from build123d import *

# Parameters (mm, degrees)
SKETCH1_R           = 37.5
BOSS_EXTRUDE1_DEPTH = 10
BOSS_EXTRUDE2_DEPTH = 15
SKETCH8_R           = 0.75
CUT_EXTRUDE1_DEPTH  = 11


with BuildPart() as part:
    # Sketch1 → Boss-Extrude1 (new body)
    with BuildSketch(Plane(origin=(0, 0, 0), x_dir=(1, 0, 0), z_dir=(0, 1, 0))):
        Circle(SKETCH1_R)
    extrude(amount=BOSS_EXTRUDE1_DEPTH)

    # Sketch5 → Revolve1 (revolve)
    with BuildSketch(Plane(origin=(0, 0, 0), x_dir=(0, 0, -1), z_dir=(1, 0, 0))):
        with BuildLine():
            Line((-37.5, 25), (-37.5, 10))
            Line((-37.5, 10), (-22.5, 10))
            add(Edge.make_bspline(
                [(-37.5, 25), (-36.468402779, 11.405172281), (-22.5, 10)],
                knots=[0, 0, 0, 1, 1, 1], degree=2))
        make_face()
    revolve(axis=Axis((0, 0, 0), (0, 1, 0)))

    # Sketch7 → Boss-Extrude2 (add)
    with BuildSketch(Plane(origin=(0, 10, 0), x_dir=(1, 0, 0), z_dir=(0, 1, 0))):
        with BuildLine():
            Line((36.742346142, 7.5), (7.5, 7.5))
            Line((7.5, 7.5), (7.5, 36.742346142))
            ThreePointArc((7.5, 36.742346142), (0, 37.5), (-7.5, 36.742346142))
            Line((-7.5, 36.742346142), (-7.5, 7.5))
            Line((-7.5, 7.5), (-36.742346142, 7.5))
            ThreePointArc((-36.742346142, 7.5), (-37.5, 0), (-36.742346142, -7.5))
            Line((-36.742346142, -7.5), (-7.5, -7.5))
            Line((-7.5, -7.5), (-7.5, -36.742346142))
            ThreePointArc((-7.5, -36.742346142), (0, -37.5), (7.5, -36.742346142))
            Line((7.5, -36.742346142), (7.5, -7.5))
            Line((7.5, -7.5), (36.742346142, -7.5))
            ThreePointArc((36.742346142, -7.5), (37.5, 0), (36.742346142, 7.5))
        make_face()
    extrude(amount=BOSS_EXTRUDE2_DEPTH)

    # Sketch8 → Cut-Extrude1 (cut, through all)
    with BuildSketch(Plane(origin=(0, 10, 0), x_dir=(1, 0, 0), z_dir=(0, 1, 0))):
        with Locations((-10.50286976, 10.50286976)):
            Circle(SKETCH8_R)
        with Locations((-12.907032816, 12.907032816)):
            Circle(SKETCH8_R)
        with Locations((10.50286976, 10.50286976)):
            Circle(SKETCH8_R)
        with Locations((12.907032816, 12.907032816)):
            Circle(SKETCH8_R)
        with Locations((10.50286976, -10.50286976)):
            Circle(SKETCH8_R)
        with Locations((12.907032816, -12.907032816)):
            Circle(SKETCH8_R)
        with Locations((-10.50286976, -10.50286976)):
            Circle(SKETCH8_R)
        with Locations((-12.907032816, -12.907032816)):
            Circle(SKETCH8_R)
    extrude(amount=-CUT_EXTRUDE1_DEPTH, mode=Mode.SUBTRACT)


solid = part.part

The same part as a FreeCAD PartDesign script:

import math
import FreeCAD as App
import Part
import Sketcher

V = App.Vector

doc = App.newDocument("Part")
params = doc.addObject("Spreadsheet::Sheet", "Params")
for row, (alias, value) in enumerate([
    ("sketch1_diameter", "75 mm"),
    ("pad1_length", "10 mm"),
    ("revolution_angle", "360 deg"),
    ("sketch3_radius", "37.5 mm"),
    ("pad2_length", "15 mm"),
    ("sketch4_diameter", "1.5 mm"),
], start=1):
    params.set(f"A{row}", alias)
    params.set(f"B{row}", "=" + value)
    params.setAlias(f"B{row}", alias)

body = doc.addObject("PartDesign::Body", "Body")

sketch1 = body.newObject("Sketcher::SketchObject", "Sketch")
sketch1.AttachmentSupport = (doc.getObject("XZ_Plane"), [""])
sketch1.MapMode = "FlatFace"
sketch1.addGeometry(Part.Circle(V(0, 0, 0), V(0, 0, 1), 38), False)
sketch1.addConstraint([
    Sketcher.Constraint("Coincident", 0, 3, -1, 1),
    Sketcher.Constraint("Diameter", 0, 75.0),
])
sketch1.setExpression("Constraints[1]", "Params.sketch1_diameter")
pad1 = body.newObject("PartDesign::Pad", "Pad")
pad1.Profile = sketch1
pad1.setExpression("Length", "Params.pad1_length")
pad1.Reversed = True

sketch2 = body.newObject("Sketcher::SketchObject", "Sketch001")
sketch2.AttachmentSupport = (doc.getObject("YZ_Plane"), [""])
sketch2.MapMode = "FlatFace"
sketch2.addGeometry([
    Part.LineSegment(V(25, 37.5, 0), V(10, 37.5, 0)),
    Part.LineSegment(V(10, 37.5, 0), V(10, 22.5, 0)),
    Part.BSplineCurve([V(25, 37.5, 0), V(11.405172, 36.468403, 0), V(10, 22.5, 0)], [3, 3], [0, 1], False, 2, [1, 1, 1], False),
], False)
sketch2.addConstraint([
    Sketcher.Constraint("Block", 2),
    Sketcher.Constraint("Coincident", 0, 2, 1, 1),
    Sketcher.Constraint("Coincident", 1, 2, 2, 2),
    Sketcher.Constraint("Coincident", 2, 1, 0, 1),
    Sketcher.Constraint("Horizontal", 0),
    Sketcher.Constraint("Vertical", 1),
])
revolution = body.newObject("PartDesign::Revolution", "Revolution")
revolution.Profile = sketch2
revolution.ReferenceAxis = (sketch2, ["H_Axis"])
revolution.setExpression("Angle", "Params.revolution_angle")

sketch3 = body.newObject("Sketcher::SketchObject", "Sketch002")
sketch3.AttachmentSupport = (doc.getObject("XZ_Plane"), [""])
sketch3.MapMode = "FlatFace"
sketch3.AttachmentOffset = App.Placement(V(0, 0, -10), App.Rotation())
sketch3.addGeometry([
    Part.LineSegment(V(37, -8, 0), V(8, -8, 0)),
    Part.LineSegment(V(8, -8, 0), V(8, -37, 0)),
    Part.ArcOfCircle(Part.Circle(V(0, 0, 0), V(0, 0, 1), 38), math.radians(-102), math.radians(-78)),
    Part.LineSegment(V(-8, -37, 0), V(-8, -8, 0)),
    Part.LineSegment(V(-8, -8, 0), V(-37, -8, 0)),
    Part.ArcOfCircle(Part.Circle(V(0, 0, 0), V(0, 0, 1), 38), math.radians(168), math.radians(192)),
    Part.LineSegment(V(-37, 8, 0), V(-8, 8, 0)),
    Part.LineSegment(V(-8, 8, 0), V(-8, 37, 0)),
    Part.ArcOfCircle(Part.Circle(V(0, 0, 0), V(0, 0, 1), 38), math.radians(78), math.radians(102)),
    Part.LineSegment(V(8, 37, 0), V(8, 8, 0)),
    Part.LineSegment(V(8, 8, 0), V(37, 8, 0)),
    Part.ArcOfCircle(Part.Circle(V(0, 0, 0), V(0, 0, 1), 38), math.radians(-12), math.radians(12)),
], False)
sketch3.addConstraint([
    Sketcher.Constraint("Coincident", 0, 2, 1, 1),
    Sketcher.Constraint("Coincident", 1, 2, 2, 2),
    Sketcher.Constraint("Coincident", 2, 1, 3, 1),
    Sketcher.Constraint("Coincident", 3, 2, 4, 1),
    Sketcher.Constraint("Coincident", 4, 2, 5, 2),
    Sketcher.Constraint("Coincident", 5, 1, 6, 1),
    Sketcher.Constraint("Coincident", 6, 2, 7, 1),
    Sketcher.Constraint("Coincident", 7, 2, 8, 2),
    Sketcher.Constraint("Coincident", 8, 1, 9, 1),
    Sketcher.Constraint("Coincident", 9, 2, 10, 1),
    Sketcher.Constraint("Coincident", 10, 2, 11, 2),
    Sketcher.Constraint("Coincident", 11, 1, 0, 1),
    Sketcher.Constraint("Horizontal", 0),
    Sketcher.Constraint("Vertical", 1),
    Sketcher.Constraint("Vertical", 3),
    Sketcher.Constraint("Horizontal", 4),
    Sketcher.Constraint("Horizontal", 6),
    Sketcher.Constraint("Vertical", 7),
    Sketcher.Constraint("Vertical", 9),
    Sketcher.Constraint("Horizontal", 10),
    Sketcher.Constraint("Coincident", 2, 3, -1, 1),
    Sketcher.Constraint("Coincident", 5, 3, -1, 1),
    Sketcher.Constraint("Coincident", 8, 3, -1, 1),
    Sketcher.Constraint("Coincident", 11, 3, -1, 1),
    Sketcher.Constraint("Equal", 2, 5),
    Sketcher.Constraint("Equal", 5, 8),
    Sketcher.Constraint("Equal", 8, 11),
    Sketcher.Constraint("Symmetric", 0, 2, 6, 2, -1, 1),
    Sketcher.Constraint("Symmetric", 3, 2, 9, 2, -1, 1),
    Sketcher.Constraint("Symmetric", 0, 2, 3, 2, -2),
    Sketcher.Constraint("Equal", 10, 1),
    Sketcher.Constraint("Radius", 2, 37.5),
    Sketcher.Constraint("DistanceX", 2, 1, 1, 2, 15.0),
])
sketch3.setExpression("Constraints[31]", "Params.sketch3_radius")
pad2 = body.newObject("PartDesign::Pad", "Pad001")
pad2.Profile = sketch3
pad2.setExpression("Length", "Params.pad2_length")
pad2.Reversed = True

sketch4 = body.newObject("Sketcher::SketchObject", "Sketch003")
sketch4.AttachmentSupport = (doc.getObject("XZ_Plane"), [""])
sketch4.MapMode = "FlatFace"
sketch4.AttachmentOffset = App.Placement(V(0, 0, -10), App.Rotation())
sketch4.addGeometry([
    Part.Circle(V(-10.5, -10.5, 0), V(0, 0, 1), 0.8),
    Part.Circle(V(-12.9, -12.9, 0), V(0, 0, 1), 0.8),
    Part.Circle(V(10.5, -10.5, 0), V(0, 0, 1), 0.8),
    Part.Circle(V(12.9, -12.9, 0), V(0, 0, 1), 0.8),
    Part.Circle(V(10.5, 10.5, 0), V(0, 0, 1), 0.8),
    Part.Circle(V(12.9, 12.9, 0), V(0, 0, 1), 0.8),
    Part.Circle(V(-10.5, 10.5, 0), V(0, 0, 1), 0.8),
    Part.Circle(V(-12.9, 12.9, 0), V(0, 0, 1), 0.8),
], False)
sketch4.addConstraint([
    Sketcher.Constraint("Equal", 0, 1),
    Sketcher.Constraint("Equal", 1, 2),
    Sketcher.Constraint("Equal", 2, 3),
    Sketcher.Constraint("Equal", 3, 4),
    Sketcher.Constraint("Equal", 4, 5),
    Sketcher.Constraint("Equal", 5, 6),
    Sketcher.Constraint("Equal", 6, 7),
    Sketcher.Constraint("Symmetric", 0, 3, 4, 3, -1, 1),
    Sketcher.Constraint("Symmetric", 1, 3, 5, 3, -1, 1),
    Sketcher.Constraint("Symmetric", 2, 3, 6, 3, -1, 1),
    Sketcher.Constraint("Symmetric", 3, 3, 7, 3, -1, 1),
    Sketcher.Constraint("Symmetric", 0, 3, 2, 3, -2),
    Sketcher.Constraint("Symmetric", 1, 3, 3, 3, -2),
    Sketcher.Constraint("Diameter", 0, 1.5),
    Sketcher.Constraint("DistanceX", 0, 3, -1, 1, 10.50287),
    Sketcher.Constraint("DistanceY", 0, 3, -1, 1, 10.50287),
    Sketcher.Constraint("DistanceX", 1, 3, -1, 1, 12.907033),
    Sketcher.Constraint("DistanceY", 1, 3, -1, 1, 12.907033),
])
sketch4.setExpression("Constraints[13]", "Params.sketch4_diameter")
pocket1 = body.newObject("PartDesign::Pocket", "Pocket")
pocket1.Profile = sketch4
pocket1.Type = "ThroughAll"
pocket1.Reversed = True

doc.recompute()
